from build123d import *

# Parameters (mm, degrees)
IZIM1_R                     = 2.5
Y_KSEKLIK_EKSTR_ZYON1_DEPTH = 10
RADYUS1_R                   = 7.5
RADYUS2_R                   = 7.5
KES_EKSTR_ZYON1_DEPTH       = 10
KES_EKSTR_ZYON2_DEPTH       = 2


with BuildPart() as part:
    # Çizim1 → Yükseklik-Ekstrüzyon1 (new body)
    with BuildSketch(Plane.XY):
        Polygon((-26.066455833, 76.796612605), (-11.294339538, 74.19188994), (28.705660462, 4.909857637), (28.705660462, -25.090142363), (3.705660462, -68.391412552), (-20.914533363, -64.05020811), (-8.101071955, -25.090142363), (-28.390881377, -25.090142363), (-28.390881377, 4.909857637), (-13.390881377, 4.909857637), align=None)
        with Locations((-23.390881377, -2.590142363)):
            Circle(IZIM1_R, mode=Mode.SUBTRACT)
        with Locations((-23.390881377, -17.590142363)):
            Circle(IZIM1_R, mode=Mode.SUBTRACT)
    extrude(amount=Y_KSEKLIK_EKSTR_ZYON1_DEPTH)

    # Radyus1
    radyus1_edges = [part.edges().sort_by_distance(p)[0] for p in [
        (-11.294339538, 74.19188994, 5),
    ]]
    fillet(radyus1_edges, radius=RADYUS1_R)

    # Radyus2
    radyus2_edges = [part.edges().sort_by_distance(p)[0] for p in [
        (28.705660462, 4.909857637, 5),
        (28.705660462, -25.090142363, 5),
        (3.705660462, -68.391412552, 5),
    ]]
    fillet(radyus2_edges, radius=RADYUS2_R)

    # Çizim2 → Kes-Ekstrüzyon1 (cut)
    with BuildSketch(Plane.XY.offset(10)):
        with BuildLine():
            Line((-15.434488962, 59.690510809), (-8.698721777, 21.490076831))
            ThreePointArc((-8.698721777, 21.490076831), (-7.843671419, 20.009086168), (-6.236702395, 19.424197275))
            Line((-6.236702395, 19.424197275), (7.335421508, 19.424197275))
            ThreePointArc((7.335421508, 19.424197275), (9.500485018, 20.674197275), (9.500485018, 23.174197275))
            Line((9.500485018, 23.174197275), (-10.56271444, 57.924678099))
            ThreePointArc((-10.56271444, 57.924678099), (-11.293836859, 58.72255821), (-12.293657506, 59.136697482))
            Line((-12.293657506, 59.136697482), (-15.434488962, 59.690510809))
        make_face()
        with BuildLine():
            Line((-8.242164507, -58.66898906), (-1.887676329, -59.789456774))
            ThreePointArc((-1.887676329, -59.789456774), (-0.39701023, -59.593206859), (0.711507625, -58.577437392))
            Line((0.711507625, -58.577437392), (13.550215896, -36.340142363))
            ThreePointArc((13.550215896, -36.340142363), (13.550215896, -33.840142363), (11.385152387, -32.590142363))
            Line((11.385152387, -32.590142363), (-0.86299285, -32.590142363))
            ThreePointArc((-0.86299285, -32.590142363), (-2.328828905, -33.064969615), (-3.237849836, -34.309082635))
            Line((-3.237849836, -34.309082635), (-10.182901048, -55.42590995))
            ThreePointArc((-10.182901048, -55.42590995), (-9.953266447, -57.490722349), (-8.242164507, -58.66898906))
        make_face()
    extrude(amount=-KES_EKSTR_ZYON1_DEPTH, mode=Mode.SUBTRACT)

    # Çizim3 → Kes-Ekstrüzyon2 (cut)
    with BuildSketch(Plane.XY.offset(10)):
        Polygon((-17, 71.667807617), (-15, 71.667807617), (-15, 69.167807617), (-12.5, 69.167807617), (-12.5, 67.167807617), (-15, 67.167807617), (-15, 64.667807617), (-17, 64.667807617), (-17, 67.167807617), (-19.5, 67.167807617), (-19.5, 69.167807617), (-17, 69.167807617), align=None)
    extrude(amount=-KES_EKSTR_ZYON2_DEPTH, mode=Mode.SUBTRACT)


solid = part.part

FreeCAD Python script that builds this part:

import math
import FreeCAD as App
import Part
import Sketcher
Q = App.Units.Quantity


def edges_at(feature, points):
    """Names of the edges that pass closest to the given points."""
    edges = feature.Shape.Edges
    near = lambda p: min(range(len(edges)), key=lambda i: edges[i].distToShape(Part.Vertex(*p))[0])
    return sorted({f"Edge{near(p) + 1}" for p in points})

doc = App.newDocument("Part")
body = doc.addObject("PartDesign::Body", "Body")

sketch1 = body.newObject("Sketcher::SketchObject", "Sketch")
sketch1.AttachmentSupport = (doc.getObject("XY_Plane"), [""])
sketch1.MapMode = "FlatFace"
sketch1.addGeometry(Part.LineSegment(App.Vector(-11.3, 74.2, 0), App.Vector(-26.1, 76.8, 0)), False)
sketch1.addGeometry(Part.LineSegment(App.Vector(-26.1, 76.8, 0), App.Vector(-13.4, 4.9, 0)), False)
sketch1.addGeometry(Part.LineSegment(App.Vector(-13.4, 4.9, 0), App.Vector(-28.4, 4.9, 0)), False)
sketch1.addGeometry(Part.LineSegment(App.Vector(-28.4, 4.9, 0), App.Vector(-28.4, -25.1, 0)), False)
sketch1.addGeometry(Part.LineSegment(App.Vector(-28.4, -25.1, 0), App.Vector(-8.1, -25.1, 0)), False)
sketch1.addGeometry(Part.LineSegment(App.Vector(-8.1, -25.1, 0), App.Vector(-20.9, -64.1, 0)), False)
sketch1.addGeometry(Part.LineSegment(App.Vector(-20.9, -64.1, 0), App.Vector(3.7, -68.4, 0)), False)
sketch1.addGeometry(Part.LineSegment(App.Vector(3.7, -68.4, 0), App.Vector(28.7, -25.1, 0)), False)
sketch1.addGeometry(Part.LineSegment(App.Vector(28.7, -25.1, 0), App.Vector(28.7, 4.9, 0)), False)
sketch1.addGeometry(Part.LineSegment(App.Vector(28.7, 4.9, 0), App.Vector(-11.3, 74.2, 0)), False)
sketch1.addGeometry(Part.Circle(App.Vector(-23.4, -17.6, 0), App.Vector(0, 0, 1), 2.5), False)
sketch1.addGeometry(Part.Circle(App.Vector(-23.4, -2.6, 0), App.Vector(0, 0, 1), 2.5), False)
sketch1.addConstraint(Sketcher.Constraint("Coincident", 0, 2, 1, 1))
sketch1.addConstraint(Sketcher.Constraint("Coincident", 1, 2, 2, 1))
sketch1.addConstraint(Sketcher.Constraint("Coincident", 2, 2, 3, 1))
sketch1.addConstraint(Sketcher.Constraint("Coincident", 3, 2, 4, 1))
sketch1.addConstraint(Sketcher.Constraint("Coincident", 4, 2, 5, 1))
sketch1.addConstraint(Sketcher.Constraint("Coincident", 5, 2, 6, 1))
sketch1.addConstraint(Sketcher.Constraint("Coincident", 6, 2, 7, 1))
sketch1.addConstraint(Sketcher.Constraint("Coincident", 7, 2, 8, 1))
sketch1.addConstraint(Sketcher.Constraint("Coincident", 8, 2, 9, 1))
sketch1.addConstraint(Sketcher.Constraint("Coincident", 9, 2, 0, 1))
sketch1.addConstraint(Sketcher.Constraint("Horizontal", 2))
sketch1.addConstraint(Sketcher.Constraint("Vertical", 3))
sketch1.addConstraint(Sketcher.Constraint("Horizontal", 4))
sketch1.addConstraint(Sketcher.Constraint("Vertical", 8))
sketch1.addConstraint(Sketcher.Constraint("Equal", 10, 11))
sketch1.addConstraint(Sketcher.Constraint("Parallel", 0, 6))
sketch1.addConstraint(Sketcher.Constraint("Horizontal", 4, 2, 7, 2))
sketch1.addConstraint(Sketcher.Constraint("Horizontal", 2, 2, 8, 2))
sketch1.addConstraint(Sketcher.Constraint("Vertical", 10, 3, 11, 3))
sketch1.addConstraint(Sketcher.Constraint("Diameter", 10, Q("5 mm")))
sketch1.addConstraint(Sketcher.Constraint("DistanceX", 2, 2, 2, 1, Q("15 mm")))
sketch1.addConstraint(Sketcher.Constraint("DistanceY", 3, 2, 3, 1, Q("30 mm")))
sketch1.addConstraint(Sketcher.Constraint("Angle", 0, Q("170 deg")))
sketch1.addConstraint(Sketcher.Constraint("Angle", 1, Q("-80 deg")))
sketch1.addConstraint(Sketcher.Constraint("Angle", 7, Q("60 deg")))
sketch1.addConstraint(Sketcher.Constraint("Angle", 9, Q("120 deg")))
sketch1.addConstraint(Sketcher.Constraint("Distance", 0, Q("15 mm")))
sketch1.addConstraint(Sketcher.Constraint("Distance", 6, Q("25 mm")))
sketch1.addConstraint(Sketcher.Constraint("Distance", 7, Q("50 mm")))
sketch1.addConstraint(Sketcher.Constraint("Distance", 9, Q("80 mm")))
sketch1.addConstraint(Sketcher.Constraint("DistanceY", 10, 3, 11, 3, Q("15 mm")))
sketch1.addConstraint(Sketcher.Constraint("DistanceX", 11, 3, 1, 2, Q("10 mm")))
sketch1.addConstraint(Sketcher.Constraint("DistanceY", 11, 3, 1, 2, Q("7.5 mm")))
sketch1.addConstraint(Sketcher.Constraint("DistanceX", 4, 1, 4, 2, Q("20.289809 mm")))
sketch1.addConstraint(Sketcher.Constraint("DistanceX", 10, 3, -1, 1, Q("23.390881 mm")))
sketch1.addConstraint(Sketcher.Constraint("DistanceY", 5, 2, -1, 1, Q("64.050208 mm")))
pad1 = body.newObject("PartDesign::Pad", "Pad")
pad1.Profile = sketch1
pad1.Length = 10
doc.recompute()

fillet = body.newObject("PartDesign::Fillet", "Fillet")
fillet.Base = (pad1, edges_at(pad1, [(-11.294, 74.192, 5)]))
fillet.Radius = 7.5
doc.recompute()

fillet2 = body.newObject("PartDesign::Fillet", "Fillet001")
fillet2.Base = (fillet, edges_at(fillet, [(28.706, 4.91, 5), (28.706, -25.09, 5), (3.706, -68.391, 5)]))
fillet2.Radius = 7.5

sketch2 = body.newObject("Sketcher::SketchObject", "Sketch001")
sketch2.AttachmentSupport = (doc.getObject("XY_Plane"), [""])
sketch2.MapMode = "FlatFace"
sketch2.AttachmentOffset = App.Placement(App.Vector(0, 0, 10), App.Rotation())
sketch2.addGeometry(Part.LineSegment(App.Vector(-15.4, 59.7, 0), App.Vector(-8.7, 21.5, 0)), False)
sketch2.addGeometry(Part.ArcOfCircle(Part.Circle(App.Vector(-6.2, 21.9, 0), App.Vector(0, 0, 1), 2.5), math.radians(-170), math.radians(-90)), False)
sketch2.addGeometry(Part.LineSegment(App.Vector(-6.2, 19.4, 0), App.Vector(7.3, 19.4, 0)), False)
sketch2.addGeometry(Part.ArcOfCircle(Part.Circle(App.Vector(7.3, 21.9, 0), App.Vector(0, 0, 1), 2.5), math.radians(-90), math.radians(30)), False)
sketch2.addGeometry(Part.LineSegment(App.Vector(9.5, 23.2, 0), App.Vector(-10.6, 57.9, 0)), False)
sketch2.addGeometry(Part.ArcOfCircle(Part.Circle(App.Vector(-12.7, 56.7, 0), App.Vector(0, 0, 1), 2.5), math.radians(30), math.radians(80)), False)
sketch2.addGeometry(Part.LineSegment(App.Vector(-12.3, 59.1, 0), App.Vector(-15.4, 59.7, 0)), False)
sketch2.addGeometry(Part.LineSegment(App.Vector(-8.2, -58.7, 0), App.Vector(-1.9, -59.8, 0)), False)
sketch2.addGeometry(Part.ArcOfCircle(Part.Circle(App.Vector(-1.5, -57.3, 0), App.Vector(0, 0, 1), 2.5), math.radians(-100), math.radians(-30)), False)
sketch2.addGeometry(Part.LineSegment(App.Vector(0.7, -58.6, 0), App.Vector(13.6, -36.3, 0)), False)
sketch2.addGeometry(Part.ArcOfCircle(Part.Circle(App.Vector(11.4, -35.1, 0), App.Vector(0, 0, 1), 2.5), math.radians(-30), math.radians(90)), False)
sketch2.addGeometry(Part.LineSegment(App.Vector(11.4, -32.6, 0), App.Vector(-0.9, -32.6, 0)), False)
sketch2.addGeometry(Part.ArcOfCircle(Part.Circle(App.Vector(-0.9, -35.1, 0), App.Vector(0, 0, 1), 2.5), math.radians(90), math.radians(162)), False)
sketch2.addGeometry(Part.LineSegment(App.Vector(-3.2, -34.3, 0), App.Vector(-10.2, -55.4, 0)), False)
sketch2.addGeometry(Part.ArcOfCircle(Part.Circle(App.Vector(-7.8, -56.2, 0), App.Vector(0, 0, 1), 2.5), math.radians(162), math.radians(260)), False)
sketch2.addConstraint(Sketcher.Constraint("Tangent", 0, 2, 1, 1))
sketch2.addConstraint(Sketcher.Constraint("Tangent", 1, 2, 2, 1))
sketch2.addConstraint(Sketcher.Constraint("Tangent", 2, 2, 3, 1))
sketch2.addConstraint(Sketcher.Constraint("Tangent", 3, 2, 4, 1))
sketch2.addConstraint(Sketcher.Constraint("Tangent", 4, 2, 5, 1))
sketch2.addConstraint(Sketcher.Constraint("Tangent", 5, 2, 6, 1))
sketch2.addConstraint(Sketcher.Constraint("Coincident", 6, 2, 0, 1))
sketch2.addConstraint(Sketcher.Constraint("Tangent", 7, 2, 8, 1))
sketch2.addConstraint(Sketcher.Constraint("Tangent", 8, 2, 9, 1))
sketch2.addConstraint(Sketcher.Constraint("Tangent", 9, 2, 10, 1))
sketch2.addConstraint(Sketcher.Constraint("Tangent", 10, 2, 11, 1))
sketch2.addConstraint(Sketcher.Constraint("Tangent", 11, 2, 12, 1))
sketch2.addConstraint(Sketcher.Constraint("Tangent", 12, 2, 13, 1))
sketch2.addConstraint(Sketcher.Constraint("Tangent", 13, 2, 14, 1))
sketch2.addConstraint(Sketcher.Constraint("Tangent", 14, 2, 7, 1))
sketch2.addConstraint(Sketcher.Constraint("Horizontal", 2))
sketch2.addConstraint(Sketcher.Constraint("Horizontal", 11))
sketch2.addConstraint(Sketcher.Constraint("Equal", 1, 3))
sketch2.addConstraint(Sketcher.Constraint("Equal", 3, 5))
sketch2.addConstraint(Sketcher.Constraint("Equal", 5, 8))
sketch2.addConstraint(Sketcher.Constraint("Equal", 8, 10))
sketch2.addConstraint(Sketcher.Constraint("Equal", 10, 12))
sketch2.addConstraint(Sketcher.Constraint("Equal", 12, 14))
sketch2.addConstraint(Sketcher.Constraint("Parallel", 6, 7))
sketch2.addConstraint(Sketcher.Constraint("Radius", 1, Q("2.5 mm")))
sketch2.addConstraint(Sketcher.Constraint("Angle", 0, Q("-80 deg")))
sketch2.addConstraint(Sketcher.Constraint("Angle", 4, Q("120 deg")))
sketch2.addConstraint(Sketcher.Constraint("Angle", 6, Q("170 deg")))
sketch2.addConstraint(Sketcher.Constraint("Angle", 9, Q("60 deg")))
sketch2.addConstraint(Sketcher.Constraint("Distance", 4, Q("40.126399 mm")))
sketch2.addConstraint(Sketcher.Constraint("DistanceX", 13, 2, -1, 1, Q("10.182901 mm")))
sketch2.addConstraint(Sketcher.Constraint("DistanceX", 12, 3, 8, 2, Q("1.5745 mm")))
sketch2.addConstraint(Sketcher.Constraint("DistanceX", 2, 1, 2, 2, Q("13.572124 mm")))
sketch2.addConstraint(Sketcher.Constraint("DistanceX", 11, 2, 11, 1, Q("12.248145 mm")))
sketch2.addConstraint(Sketcher.Constraint("DistanceX", -1, 1, 3, 3, Q("7.335422 mm")))
sketch2.addConstraint(Sketcher.Constraint("DistanceY", -1, 1, 5, 3, Q("56.674678 mm")))
sketch2.addConstraint(Sketcher.Constraint("DistanceY", 14, 3, -1, 1, Q("56.20697 mm")))
sketch2.addConstraint(Sketcher.Constraint("DistanceX", 12, 2, -1, 1, Q("3.23785 mm")))
pocket1 = body.newObject("PartDesign::Pocket", "Pocket")
pocket1.Profile = sketch2
pocket1.Length = 10

sketch3 = body.newObject("Sketcher::SketchObject", "Sketch002")
sketch3.AttachmentSupport = (doc.getObject("XY_Plane"), [""])
sketch3.MapMode = "FlatFace"
sketch3.AttachmentOffset = App.Placement(App.Vector(0, 0, 10), App.Rotation())
sketch3.addGeometry(Part.LineSegment(App.Vector(-15, 71.7, 0), App.Vector(-17, 71.7, 0)), False)
sketch3.addGeometry(Part.LineSegment(App.Vector(-17, 71.7, 0), App.Vector(-17, 69.2, 0)), False)
sketch3.addGeometry(Part.LineSegment(App.Vector(-17, 69.2, 0), App.Vector(-19.5, 69.2, 0)), False)
sketch3.addGeometry(Part.LineSegment(App.Vector(-19.5, 69.2, 0), App.Vector(-19.5, 67.2, 0)), False)
sketch3.addGeometry(Part.LineSegment(App.Vector(-19.5, 67.2, 0), App.Vector(-17, 67.2, 0)), False)
sketch3.addGeometry(Part.LineSegment(App.Vector(-17, 67.2, 0), App.Vector(-17, 64.7, 0)), False)
sketch3.addGeometry(Part.LineSegment(App.Vector(-17, 64.7, 0), App.Vector(-15, 64.7, 0)), False)
sketch3.addGeometry(Part.LineSegment(App.Vector(-15, 64.7, 0), App.Vector(-15, 67.2, 0)), False)
sketch3.addGeometry(Part.LineSegment(App.Vector(-15, 67.2, 0), App.Vector(-12.5, 67.2, 0)), False)
sketch3.addGeometry(Part.LineSegment(App.Vector(-12.5, 67.2, 0), App.Vector(-12.5, 69.2, 0)), False)
sketch3.addGeometry(Part.LineSegment(App.Vector(-12.5, 69.2, 0), App.Vector(-15, 69.2, 0)), False)
sketch3.addGeometry(Part.LineSegment(App.Vector(-15, 69.2, 0), App.Vector(-15, 71.7, 0)), False)
sketch3.addConstraint(Sketcher.Constraint("Coincident", 0, 2, 1, 1))
sketch3.addConstraint(Sketcher.Constraint("Coincident", 1, 2, 2, 1))
sketch3.addConstraint(Sketcher.Constraint("Coincident", 2, 2, 3, 1))
sketch3.addConstraint(Sketcher.Constraint("Coincident", 3, 2, 4, 1))
sketch3.addConstraint(Sketcher.Constraint("Coincident", 4, 2, 5, 1))
sketch3.addConstraint(Sketcher.Constraint("Coincident", 5, 2, 6, 1))
sketch3.addConstraint(Sketcher.Constraint("Coincident", 6, 2, 7, 1))
sketch3.addConstraint(Sketcher.Constraint("Coincident", 7, 2, 8, 1))
sketch3.addConstraint(Sketcher.Constraint("Coincident", 8, 2, 9, 1))
sketch3.addConstraint(Sketcher.Constraint("Coincident", 9, 2, 10, 1))
sketch3.addConstraint(Sketcher.Constraint("Coincident", 10, 2, 11, 1))
sketch3.addConstraint(Sketcher.Constraint("Coincident", 11, 2, 0, 1))
sketch3.addConstraint(Sketcher.Constraint("Horizontal", 0))
sketch3.addConstraint(Sketcher.Constraint("Vertical", 1))
sketch3.addConstraint(Sketcher.Constraint("Horizontal", 2))
sketch3.addConstraint(Sketcher.Constraint("Vertical", 3))
sketch3.addConstraint(Sketcher.Constraint("Horizontal", 4))
sketch3.addConstraint(Sketcher.Constraint("Vertical", 5))
sketch3.addConstraint(Sketcher.Constraint("Horizontal", 6))
sketch3.addConstraint(Sketcher.Constraint("Vertical", 7))
sketch3.addConstraint(Sketcher.Constraint("Horizontal", 8))
sketch3.addConstraint(Sketcher.Constraint("Vertical", 9))
sketch3.addConstraint(Sketcher.Constraint("Horizontal", 10))
sketch3.addConstraint(Sketcher.Constraint("Vertical", 11))
sketch3.addConstraint(Sketcher.Constraint("Horizontal", 4, 2, 7, 2))
sketch3.addConstraint(Sketcher.Constraint("Horizontal", 2, 2, 9, 2))
sketch3.addConstraint(Sketcher.Constraint("Vertical", 1, 2, 4, 2))
sketch3.addConstraint(Sketcher.Constraint("Vertical", 7, 2, 10, 2))
sketch3.addConstraint(Sketcher.Constraint("Equal", 4, 8))
sketch3.addConstraint(Sketcher.Constraint("Equal", 10, 1))
sketch3.addConstraint(Sketcher.Constraint("Equal", 6, 3))
sketch3.addConstraint(Sketcher.Constraint("Equal", 1, 5))
sketch3.addConstraint(Sketcher.Constraint("DistanceX", 0, 2, 0, 1, Q("2 mm")))
sketch3.addConstraint(Sketcher.Constraint("DistanceX", 2, 2, 2, 1, Q("2.5 mm")))
sketch3.addConstraint(Sketcher.Constraint("DistanceX", 0, 2, -1, 1, Q("17 mm")))
sketch3.addConstraint(Sketcher.Constraint("DistanceY", -1, 1, 0, 2, Q("71.667808 mm")))
pocket2 = body.newObject("PartDesign::Pocket", "Pocket001")
pocket2.Profile = sketch3
pocket2.Length = 2

doc.recompute()
